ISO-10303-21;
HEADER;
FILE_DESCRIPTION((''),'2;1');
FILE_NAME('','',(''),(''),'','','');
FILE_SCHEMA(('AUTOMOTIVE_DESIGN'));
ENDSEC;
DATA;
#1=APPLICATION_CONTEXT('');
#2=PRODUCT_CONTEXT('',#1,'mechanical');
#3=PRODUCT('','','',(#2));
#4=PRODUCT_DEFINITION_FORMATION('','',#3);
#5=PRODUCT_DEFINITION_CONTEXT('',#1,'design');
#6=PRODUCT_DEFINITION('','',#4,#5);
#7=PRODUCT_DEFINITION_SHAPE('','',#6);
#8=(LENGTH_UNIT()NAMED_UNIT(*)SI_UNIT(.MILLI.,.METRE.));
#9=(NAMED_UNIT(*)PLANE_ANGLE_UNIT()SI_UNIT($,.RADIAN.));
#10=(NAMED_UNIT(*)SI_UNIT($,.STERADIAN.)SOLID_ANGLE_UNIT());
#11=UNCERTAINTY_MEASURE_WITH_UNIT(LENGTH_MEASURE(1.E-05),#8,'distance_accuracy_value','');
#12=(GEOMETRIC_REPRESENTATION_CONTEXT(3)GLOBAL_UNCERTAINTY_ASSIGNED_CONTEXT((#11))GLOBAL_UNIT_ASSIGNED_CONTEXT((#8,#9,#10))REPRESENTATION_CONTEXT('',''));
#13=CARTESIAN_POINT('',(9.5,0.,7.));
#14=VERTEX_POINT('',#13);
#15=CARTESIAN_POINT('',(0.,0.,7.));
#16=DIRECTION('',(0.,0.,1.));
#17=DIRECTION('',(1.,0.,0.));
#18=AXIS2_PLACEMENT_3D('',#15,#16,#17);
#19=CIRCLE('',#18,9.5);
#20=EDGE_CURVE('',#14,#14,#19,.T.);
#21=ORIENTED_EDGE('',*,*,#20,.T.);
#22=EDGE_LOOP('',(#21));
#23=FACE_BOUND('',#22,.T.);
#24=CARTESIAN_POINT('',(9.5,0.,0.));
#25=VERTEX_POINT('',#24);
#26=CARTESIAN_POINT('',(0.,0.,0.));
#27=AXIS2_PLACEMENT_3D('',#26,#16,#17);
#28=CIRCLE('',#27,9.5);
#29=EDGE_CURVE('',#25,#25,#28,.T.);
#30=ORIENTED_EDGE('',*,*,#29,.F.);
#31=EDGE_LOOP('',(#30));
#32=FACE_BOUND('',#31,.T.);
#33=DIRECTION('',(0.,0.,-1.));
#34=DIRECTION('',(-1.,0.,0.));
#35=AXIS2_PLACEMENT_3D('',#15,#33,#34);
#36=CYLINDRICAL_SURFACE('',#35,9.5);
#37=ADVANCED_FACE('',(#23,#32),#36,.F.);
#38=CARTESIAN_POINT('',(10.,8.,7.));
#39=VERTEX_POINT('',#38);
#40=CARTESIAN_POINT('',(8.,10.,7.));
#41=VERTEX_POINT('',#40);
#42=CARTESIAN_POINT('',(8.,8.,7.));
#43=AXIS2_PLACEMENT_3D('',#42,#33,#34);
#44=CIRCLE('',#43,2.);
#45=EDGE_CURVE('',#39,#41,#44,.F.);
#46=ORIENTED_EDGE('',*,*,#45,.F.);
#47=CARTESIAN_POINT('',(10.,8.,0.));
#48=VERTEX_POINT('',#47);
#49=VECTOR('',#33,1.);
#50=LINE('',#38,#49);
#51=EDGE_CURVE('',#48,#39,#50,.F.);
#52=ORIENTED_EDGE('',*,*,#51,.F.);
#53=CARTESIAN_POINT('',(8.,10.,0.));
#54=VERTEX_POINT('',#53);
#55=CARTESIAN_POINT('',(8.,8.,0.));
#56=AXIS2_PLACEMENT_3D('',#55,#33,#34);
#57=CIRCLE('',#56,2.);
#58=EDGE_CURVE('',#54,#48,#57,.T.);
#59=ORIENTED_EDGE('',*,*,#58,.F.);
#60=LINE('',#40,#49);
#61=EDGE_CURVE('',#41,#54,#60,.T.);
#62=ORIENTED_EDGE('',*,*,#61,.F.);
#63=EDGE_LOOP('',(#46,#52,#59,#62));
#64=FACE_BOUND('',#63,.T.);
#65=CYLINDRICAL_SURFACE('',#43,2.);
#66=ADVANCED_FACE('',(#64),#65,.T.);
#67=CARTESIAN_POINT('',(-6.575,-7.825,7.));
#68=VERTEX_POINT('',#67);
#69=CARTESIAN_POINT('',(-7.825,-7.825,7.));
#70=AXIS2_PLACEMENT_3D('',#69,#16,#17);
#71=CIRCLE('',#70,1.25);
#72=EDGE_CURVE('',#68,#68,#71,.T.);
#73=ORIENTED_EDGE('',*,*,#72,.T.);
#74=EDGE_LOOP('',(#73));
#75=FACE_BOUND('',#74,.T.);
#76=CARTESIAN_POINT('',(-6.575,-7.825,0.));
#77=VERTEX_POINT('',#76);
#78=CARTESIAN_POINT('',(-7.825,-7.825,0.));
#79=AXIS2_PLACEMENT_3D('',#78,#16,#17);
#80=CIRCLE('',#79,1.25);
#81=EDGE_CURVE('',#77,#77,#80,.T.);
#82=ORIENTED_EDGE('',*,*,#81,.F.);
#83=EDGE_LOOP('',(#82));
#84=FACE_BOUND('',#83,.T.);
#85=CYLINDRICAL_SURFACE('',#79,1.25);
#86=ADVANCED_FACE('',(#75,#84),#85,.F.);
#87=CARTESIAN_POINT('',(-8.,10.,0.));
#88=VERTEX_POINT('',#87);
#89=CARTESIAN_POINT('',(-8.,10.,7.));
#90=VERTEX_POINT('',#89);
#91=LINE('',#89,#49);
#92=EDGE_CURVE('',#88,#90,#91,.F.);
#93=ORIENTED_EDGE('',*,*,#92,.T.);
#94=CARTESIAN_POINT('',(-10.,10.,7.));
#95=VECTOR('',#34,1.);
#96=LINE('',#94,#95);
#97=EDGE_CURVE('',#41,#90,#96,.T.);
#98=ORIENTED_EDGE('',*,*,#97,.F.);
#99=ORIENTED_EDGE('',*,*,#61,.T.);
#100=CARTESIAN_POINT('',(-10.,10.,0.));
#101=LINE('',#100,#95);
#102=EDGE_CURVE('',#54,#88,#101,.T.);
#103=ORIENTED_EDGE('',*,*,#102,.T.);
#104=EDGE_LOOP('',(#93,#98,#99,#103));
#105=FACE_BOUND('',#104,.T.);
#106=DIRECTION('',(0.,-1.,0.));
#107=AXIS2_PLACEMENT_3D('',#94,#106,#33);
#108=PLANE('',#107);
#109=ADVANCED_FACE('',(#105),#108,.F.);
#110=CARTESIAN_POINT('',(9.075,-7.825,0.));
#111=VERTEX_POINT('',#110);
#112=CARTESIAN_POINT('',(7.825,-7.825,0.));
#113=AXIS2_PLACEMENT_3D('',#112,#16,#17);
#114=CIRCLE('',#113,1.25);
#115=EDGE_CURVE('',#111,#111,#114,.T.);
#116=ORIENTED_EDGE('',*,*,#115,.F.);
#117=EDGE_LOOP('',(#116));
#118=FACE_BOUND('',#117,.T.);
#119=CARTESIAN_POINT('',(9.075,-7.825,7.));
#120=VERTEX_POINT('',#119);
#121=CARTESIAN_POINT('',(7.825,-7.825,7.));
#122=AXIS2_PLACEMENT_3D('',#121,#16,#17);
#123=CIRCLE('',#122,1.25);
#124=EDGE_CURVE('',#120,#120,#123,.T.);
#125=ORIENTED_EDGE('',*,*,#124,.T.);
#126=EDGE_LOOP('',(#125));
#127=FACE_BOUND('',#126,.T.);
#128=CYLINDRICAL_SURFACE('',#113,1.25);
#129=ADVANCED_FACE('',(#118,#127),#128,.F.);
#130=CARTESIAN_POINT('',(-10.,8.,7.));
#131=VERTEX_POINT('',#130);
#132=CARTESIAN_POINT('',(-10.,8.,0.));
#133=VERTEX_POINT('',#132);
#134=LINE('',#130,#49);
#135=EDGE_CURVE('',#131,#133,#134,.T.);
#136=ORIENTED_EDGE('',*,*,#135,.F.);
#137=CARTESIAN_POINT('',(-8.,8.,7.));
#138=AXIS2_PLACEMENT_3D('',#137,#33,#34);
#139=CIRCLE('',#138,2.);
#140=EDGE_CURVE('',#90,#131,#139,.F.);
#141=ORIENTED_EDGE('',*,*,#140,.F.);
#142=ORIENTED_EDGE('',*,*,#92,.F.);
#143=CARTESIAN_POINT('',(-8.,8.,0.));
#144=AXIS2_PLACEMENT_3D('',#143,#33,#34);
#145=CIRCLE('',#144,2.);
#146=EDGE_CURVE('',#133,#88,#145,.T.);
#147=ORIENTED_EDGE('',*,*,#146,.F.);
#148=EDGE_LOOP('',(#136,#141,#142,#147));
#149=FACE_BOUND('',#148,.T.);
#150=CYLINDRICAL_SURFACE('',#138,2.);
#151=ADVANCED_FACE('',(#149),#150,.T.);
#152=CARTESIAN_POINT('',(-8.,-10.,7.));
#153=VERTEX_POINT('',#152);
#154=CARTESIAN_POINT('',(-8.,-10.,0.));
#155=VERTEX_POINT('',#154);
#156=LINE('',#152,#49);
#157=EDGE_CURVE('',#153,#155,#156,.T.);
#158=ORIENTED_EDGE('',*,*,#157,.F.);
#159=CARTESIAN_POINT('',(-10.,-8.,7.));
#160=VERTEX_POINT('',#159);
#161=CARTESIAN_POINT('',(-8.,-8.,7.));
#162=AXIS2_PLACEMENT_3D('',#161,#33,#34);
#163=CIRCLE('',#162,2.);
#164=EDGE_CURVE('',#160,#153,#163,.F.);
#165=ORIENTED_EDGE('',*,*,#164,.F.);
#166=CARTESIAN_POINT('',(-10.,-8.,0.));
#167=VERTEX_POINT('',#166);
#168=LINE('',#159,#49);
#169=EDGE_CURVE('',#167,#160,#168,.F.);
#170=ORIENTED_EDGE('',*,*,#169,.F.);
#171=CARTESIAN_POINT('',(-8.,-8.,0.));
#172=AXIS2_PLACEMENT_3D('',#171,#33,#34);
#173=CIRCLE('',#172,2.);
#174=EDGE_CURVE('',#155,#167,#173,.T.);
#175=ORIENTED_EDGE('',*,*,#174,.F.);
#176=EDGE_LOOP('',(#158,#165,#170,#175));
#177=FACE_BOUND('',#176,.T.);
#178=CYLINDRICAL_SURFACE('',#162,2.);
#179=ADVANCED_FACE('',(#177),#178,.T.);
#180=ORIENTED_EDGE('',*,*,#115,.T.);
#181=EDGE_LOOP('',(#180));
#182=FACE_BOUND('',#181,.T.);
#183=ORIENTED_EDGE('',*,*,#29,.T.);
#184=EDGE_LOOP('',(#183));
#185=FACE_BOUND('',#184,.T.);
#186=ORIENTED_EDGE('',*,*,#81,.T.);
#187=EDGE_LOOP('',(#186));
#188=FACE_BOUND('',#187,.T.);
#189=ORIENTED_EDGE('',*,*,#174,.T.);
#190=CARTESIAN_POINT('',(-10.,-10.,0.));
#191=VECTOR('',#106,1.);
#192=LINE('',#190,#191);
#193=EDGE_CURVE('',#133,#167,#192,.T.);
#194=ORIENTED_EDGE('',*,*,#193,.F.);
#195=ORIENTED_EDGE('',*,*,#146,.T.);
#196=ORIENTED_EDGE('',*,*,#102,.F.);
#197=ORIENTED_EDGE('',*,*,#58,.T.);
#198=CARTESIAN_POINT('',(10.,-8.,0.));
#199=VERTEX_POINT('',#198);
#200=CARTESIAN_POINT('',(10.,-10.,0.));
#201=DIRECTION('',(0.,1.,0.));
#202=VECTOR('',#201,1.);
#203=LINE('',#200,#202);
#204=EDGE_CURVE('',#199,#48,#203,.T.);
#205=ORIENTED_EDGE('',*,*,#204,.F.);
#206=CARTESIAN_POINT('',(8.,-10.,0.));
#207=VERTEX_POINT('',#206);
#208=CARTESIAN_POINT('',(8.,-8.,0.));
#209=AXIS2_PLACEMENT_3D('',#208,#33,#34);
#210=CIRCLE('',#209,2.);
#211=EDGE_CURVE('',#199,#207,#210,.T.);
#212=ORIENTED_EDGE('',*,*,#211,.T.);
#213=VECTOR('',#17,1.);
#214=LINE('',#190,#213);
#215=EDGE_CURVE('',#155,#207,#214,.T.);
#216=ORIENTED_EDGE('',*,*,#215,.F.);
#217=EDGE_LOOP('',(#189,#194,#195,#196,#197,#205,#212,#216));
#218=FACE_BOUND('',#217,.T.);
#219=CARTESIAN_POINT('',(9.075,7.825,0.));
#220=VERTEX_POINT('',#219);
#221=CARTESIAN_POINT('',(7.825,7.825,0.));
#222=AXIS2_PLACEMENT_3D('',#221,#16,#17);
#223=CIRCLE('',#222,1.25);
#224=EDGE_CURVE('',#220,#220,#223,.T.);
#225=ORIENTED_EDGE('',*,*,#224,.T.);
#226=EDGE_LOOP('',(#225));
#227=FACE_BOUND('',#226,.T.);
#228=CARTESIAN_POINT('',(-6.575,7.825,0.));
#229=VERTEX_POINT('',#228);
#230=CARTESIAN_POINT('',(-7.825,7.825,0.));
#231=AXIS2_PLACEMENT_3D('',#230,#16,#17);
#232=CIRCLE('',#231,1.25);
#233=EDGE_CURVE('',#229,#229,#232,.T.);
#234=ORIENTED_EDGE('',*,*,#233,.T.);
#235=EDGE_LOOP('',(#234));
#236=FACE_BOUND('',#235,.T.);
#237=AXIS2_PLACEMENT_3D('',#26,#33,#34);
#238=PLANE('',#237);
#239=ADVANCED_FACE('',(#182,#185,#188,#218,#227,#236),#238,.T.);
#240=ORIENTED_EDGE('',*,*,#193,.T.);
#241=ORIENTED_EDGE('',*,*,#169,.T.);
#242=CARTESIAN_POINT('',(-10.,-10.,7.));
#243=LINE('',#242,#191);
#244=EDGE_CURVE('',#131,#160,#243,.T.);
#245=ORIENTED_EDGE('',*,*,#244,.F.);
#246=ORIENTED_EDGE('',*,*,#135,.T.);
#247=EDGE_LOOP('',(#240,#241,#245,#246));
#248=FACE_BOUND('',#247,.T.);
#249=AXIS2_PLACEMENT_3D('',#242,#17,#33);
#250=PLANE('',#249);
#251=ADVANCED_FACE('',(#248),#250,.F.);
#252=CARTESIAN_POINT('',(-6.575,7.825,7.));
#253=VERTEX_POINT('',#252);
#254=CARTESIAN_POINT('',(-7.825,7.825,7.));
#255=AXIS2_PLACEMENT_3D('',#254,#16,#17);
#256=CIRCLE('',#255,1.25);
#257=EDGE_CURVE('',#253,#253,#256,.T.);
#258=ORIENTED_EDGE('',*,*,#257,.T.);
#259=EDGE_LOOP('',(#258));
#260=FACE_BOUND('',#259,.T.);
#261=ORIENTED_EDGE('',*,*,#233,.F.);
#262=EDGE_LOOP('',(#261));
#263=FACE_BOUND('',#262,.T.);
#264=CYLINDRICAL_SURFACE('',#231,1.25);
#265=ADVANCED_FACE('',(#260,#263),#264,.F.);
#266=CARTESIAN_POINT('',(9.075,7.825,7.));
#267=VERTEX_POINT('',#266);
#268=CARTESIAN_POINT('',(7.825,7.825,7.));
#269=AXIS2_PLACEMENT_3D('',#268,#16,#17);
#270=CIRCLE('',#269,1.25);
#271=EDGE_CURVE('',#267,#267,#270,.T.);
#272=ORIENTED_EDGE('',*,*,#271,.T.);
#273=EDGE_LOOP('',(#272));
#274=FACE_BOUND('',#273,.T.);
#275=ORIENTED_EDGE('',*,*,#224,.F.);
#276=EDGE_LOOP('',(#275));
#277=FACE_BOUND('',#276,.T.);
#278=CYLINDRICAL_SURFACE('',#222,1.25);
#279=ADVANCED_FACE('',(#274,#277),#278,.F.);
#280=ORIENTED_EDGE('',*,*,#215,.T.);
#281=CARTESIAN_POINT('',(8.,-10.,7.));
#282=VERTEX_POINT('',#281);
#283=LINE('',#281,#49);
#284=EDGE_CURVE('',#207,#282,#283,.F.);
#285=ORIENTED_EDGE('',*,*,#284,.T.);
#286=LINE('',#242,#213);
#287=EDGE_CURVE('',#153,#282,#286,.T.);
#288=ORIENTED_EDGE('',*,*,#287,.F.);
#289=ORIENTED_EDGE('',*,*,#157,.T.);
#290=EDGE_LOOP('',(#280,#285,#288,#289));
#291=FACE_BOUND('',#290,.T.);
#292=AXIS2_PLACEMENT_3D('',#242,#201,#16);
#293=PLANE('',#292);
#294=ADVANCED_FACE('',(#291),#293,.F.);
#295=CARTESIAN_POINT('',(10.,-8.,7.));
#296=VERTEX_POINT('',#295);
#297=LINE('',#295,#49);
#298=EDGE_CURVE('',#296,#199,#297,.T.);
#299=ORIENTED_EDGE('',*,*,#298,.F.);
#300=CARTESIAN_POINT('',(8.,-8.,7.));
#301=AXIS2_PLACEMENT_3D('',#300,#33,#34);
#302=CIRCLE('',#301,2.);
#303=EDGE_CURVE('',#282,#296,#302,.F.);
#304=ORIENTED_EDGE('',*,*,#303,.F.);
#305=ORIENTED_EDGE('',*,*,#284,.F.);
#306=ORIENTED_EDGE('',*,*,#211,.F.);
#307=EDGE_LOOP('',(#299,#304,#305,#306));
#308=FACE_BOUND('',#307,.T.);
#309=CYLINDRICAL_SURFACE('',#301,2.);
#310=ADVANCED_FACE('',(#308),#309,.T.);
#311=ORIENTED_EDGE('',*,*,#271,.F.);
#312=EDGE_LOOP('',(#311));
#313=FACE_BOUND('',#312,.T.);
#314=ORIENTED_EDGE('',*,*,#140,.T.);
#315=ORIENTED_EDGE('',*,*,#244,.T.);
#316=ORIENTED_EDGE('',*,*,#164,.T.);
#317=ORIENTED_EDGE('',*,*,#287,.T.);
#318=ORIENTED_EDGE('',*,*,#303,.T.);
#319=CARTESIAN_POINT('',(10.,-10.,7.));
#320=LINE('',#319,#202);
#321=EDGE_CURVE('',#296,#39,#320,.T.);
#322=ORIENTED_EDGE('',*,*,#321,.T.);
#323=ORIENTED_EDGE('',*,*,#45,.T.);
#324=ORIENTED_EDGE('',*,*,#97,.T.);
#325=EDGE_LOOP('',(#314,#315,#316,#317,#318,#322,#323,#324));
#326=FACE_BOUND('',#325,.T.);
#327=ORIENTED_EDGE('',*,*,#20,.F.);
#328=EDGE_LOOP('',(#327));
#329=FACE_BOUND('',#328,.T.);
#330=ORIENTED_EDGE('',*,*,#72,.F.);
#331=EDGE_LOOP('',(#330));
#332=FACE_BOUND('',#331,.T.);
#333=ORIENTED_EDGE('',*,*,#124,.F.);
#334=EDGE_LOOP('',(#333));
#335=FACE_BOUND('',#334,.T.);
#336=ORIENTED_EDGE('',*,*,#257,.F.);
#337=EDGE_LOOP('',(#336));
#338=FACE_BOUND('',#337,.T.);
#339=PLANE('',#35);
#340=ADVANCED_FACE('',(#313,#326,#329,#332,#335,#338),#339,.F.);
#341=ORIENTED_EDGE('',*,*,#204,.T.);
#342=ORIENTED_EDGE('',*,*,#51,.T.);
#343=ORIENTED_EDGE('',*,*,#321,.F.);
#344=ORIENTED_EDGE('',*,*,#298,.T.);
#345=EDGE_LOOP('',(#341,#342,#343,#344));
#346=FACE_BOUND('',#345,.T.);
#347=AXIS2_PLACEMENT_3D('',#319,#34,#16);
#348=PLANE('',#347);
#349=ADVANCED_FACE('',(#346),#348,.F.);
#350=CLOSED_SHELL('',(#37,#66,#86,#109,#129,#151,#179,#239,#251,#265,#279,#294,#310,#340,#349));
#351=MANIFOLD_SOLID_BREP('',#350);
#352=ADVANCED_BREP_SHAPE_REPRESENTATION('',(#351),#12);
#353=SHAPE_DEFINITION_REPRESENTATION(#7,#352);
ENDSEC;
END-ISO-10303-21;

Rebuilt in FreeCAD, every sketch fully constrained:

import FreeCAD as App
import Part
import Sketcher

V = App.Vector
Q = App.Units.Quantity


def edges_at(feature, points):
    """Names of the edges that pass closest to the given points."""
    edges = feature.Shape.Edges
    near = lambda p: min(range(len(edges)), key=lambda i: edges[i].distToShape(Part.Vertex(*p))[0])
    return sorted({f"Edge{near(p) + 1}" for p in points})


def add_polygon(sketch, points):
    """Adds a closed chain of lines whose ends are joined by coincident constraints."""
    first, n = sketch.GeometryCount, len(points)
    for a, b in zip(points, points[1:] + points[:1]):
        sketch.addGeometry(Part.LineSegment(App.Vector(*a, 0), App.Vector(*b, 0)), False)
    for i in range(n):
        sketch.addConstraint(Sketcher.Constraint("Coincident", first + i, 2, first + (i + 1) % n, 1))

doc = App.newDocument("Part")
body = doc.addObject("PartDesign::Body", "Body")

# Sketch on XY plane
sketch1 = body.newObject("Sketcher::SketchObject", "Sketch")
sketch1.AttachmentSupport = (doc.getObject("XY_Plane"), [""])
sketch1.MapMode = "FlatFace"
add_polygon(sketch1, [(-10, 10), (-10, -10), (10, -10), (10, 10)])  # lines 0-3
sketch1.addGeometry(Part.Circle(V(0, 0, 0), V(0, 0, 1), 9.5), False)  # 4
sketch1.addConstraint(Sketcher.Constraint("Vertical", 0))
sketch1.addConstraint(Sketcher.Constraint("Horizontal", 1))
sketch1.addConstraint(Sketcher.Constraint("Vertical", 2))
sketch1.addConstraint(Sketcher.Constraint("Horizontal", 3))
sketch1.addConstraint(Sketcher.Constraint("Coincident", 4, 3, -1, 1))
sketch1.addConstraint(Sketcher.Constraint("Symmetric", 0, 2, 2, 2, -1, 1))
sketch1.addConstraint(Sketcher.Constraint("Equal", 3, 0))
sketch1.addConstraint(Sketcher.Constraint("Diameter", 4, Q("19 mm")))
sketch1.addConstraint(Sketcher.Constraint("DistanceX", 1, 1, 1, 2, Q("20 mm")))
pad1 = body.newObject("PartDesign::Pad", "Pad")
pad1.Profile = sketch1
pad1.Length = 7
doc.recompute()

fillet = body.newObject("PartDesign::Fillet", "Fillet")
fillet.Base = (pad1, edges_at(pad1, [
    (10, -10, 3.5),
    (-10, -10, 3.5),
    (-10, 10, 3.5),
    (10, 10, 3.5),
]))
fillet.Radius = 2

# Sketch on XY plane
sketch2 = body.newObject("Sketcher::SketchObject", "Sketch001")
sketch2.AttachmentSupport = (doc.getObject("XY_Plane"), [""])
sketch2.MapMode = "FlatFace"
sketch2.AttachmentOffset = App.Placement(V(0, 0, 7), App.Rotation())
sketch2.addGeometry(Part.Circle(V(-7.825, 7.825, 0), V(0, 0, 1), 1.25), False)
sketch2.addGeometry(Part.Circle(V(7.825, 7.825, 0), V(0, 0, 1), 1.25), False)
sketch2.addGeometry(Part.Circle(V(7.825, -7.825, 0), V(0, 0, 1), 1.25), False)
sketch2.addGeometry(Part.Circle(V(-7.825, -7.825, 0), V(0, 0, 1), 1.25), False)
sketch2.addConstraint(Sketcher.Constraint("Equal", 0, 1))
sketch2.addConstraint(Sketcher.Constraint("Equal", 1, 2))
sketch2.addConstraint(Sketcher.Constraint("Equal", 2, 3))
sketch2.addConstraint(Sketcher.Constraint("Symmetric", 0, 3, 2, 3, -1, 1))
sketch2.addConstraint(Sketcher.Constraint("Symmetric", 1, 3, 3, 3, -1, 1))
sketch2.addConstraint(Sketcher.Constraint("Symmetric", 0, 3, 1, 3, -2))
sketch2.addConstraint(Sketcher.Constraint("Diameter", 0, Q("2.5 mm")))
sketch2.addConstraint(Sketcher.Constraint("DistanceX", 0, 3, 1, 3, Q("15.65 mm")))
sketch2.addConstraint(Sketcher.Constraint("DistanceY", 2, 3, 1, 3, Q("15.65 mm")))
pocket1 = body.newObject("PartDesign::Pocket", "Pocket")
pocket1.Profile = sketch2
pocket1.Type = "ThroughAll"

doc.recompute()
